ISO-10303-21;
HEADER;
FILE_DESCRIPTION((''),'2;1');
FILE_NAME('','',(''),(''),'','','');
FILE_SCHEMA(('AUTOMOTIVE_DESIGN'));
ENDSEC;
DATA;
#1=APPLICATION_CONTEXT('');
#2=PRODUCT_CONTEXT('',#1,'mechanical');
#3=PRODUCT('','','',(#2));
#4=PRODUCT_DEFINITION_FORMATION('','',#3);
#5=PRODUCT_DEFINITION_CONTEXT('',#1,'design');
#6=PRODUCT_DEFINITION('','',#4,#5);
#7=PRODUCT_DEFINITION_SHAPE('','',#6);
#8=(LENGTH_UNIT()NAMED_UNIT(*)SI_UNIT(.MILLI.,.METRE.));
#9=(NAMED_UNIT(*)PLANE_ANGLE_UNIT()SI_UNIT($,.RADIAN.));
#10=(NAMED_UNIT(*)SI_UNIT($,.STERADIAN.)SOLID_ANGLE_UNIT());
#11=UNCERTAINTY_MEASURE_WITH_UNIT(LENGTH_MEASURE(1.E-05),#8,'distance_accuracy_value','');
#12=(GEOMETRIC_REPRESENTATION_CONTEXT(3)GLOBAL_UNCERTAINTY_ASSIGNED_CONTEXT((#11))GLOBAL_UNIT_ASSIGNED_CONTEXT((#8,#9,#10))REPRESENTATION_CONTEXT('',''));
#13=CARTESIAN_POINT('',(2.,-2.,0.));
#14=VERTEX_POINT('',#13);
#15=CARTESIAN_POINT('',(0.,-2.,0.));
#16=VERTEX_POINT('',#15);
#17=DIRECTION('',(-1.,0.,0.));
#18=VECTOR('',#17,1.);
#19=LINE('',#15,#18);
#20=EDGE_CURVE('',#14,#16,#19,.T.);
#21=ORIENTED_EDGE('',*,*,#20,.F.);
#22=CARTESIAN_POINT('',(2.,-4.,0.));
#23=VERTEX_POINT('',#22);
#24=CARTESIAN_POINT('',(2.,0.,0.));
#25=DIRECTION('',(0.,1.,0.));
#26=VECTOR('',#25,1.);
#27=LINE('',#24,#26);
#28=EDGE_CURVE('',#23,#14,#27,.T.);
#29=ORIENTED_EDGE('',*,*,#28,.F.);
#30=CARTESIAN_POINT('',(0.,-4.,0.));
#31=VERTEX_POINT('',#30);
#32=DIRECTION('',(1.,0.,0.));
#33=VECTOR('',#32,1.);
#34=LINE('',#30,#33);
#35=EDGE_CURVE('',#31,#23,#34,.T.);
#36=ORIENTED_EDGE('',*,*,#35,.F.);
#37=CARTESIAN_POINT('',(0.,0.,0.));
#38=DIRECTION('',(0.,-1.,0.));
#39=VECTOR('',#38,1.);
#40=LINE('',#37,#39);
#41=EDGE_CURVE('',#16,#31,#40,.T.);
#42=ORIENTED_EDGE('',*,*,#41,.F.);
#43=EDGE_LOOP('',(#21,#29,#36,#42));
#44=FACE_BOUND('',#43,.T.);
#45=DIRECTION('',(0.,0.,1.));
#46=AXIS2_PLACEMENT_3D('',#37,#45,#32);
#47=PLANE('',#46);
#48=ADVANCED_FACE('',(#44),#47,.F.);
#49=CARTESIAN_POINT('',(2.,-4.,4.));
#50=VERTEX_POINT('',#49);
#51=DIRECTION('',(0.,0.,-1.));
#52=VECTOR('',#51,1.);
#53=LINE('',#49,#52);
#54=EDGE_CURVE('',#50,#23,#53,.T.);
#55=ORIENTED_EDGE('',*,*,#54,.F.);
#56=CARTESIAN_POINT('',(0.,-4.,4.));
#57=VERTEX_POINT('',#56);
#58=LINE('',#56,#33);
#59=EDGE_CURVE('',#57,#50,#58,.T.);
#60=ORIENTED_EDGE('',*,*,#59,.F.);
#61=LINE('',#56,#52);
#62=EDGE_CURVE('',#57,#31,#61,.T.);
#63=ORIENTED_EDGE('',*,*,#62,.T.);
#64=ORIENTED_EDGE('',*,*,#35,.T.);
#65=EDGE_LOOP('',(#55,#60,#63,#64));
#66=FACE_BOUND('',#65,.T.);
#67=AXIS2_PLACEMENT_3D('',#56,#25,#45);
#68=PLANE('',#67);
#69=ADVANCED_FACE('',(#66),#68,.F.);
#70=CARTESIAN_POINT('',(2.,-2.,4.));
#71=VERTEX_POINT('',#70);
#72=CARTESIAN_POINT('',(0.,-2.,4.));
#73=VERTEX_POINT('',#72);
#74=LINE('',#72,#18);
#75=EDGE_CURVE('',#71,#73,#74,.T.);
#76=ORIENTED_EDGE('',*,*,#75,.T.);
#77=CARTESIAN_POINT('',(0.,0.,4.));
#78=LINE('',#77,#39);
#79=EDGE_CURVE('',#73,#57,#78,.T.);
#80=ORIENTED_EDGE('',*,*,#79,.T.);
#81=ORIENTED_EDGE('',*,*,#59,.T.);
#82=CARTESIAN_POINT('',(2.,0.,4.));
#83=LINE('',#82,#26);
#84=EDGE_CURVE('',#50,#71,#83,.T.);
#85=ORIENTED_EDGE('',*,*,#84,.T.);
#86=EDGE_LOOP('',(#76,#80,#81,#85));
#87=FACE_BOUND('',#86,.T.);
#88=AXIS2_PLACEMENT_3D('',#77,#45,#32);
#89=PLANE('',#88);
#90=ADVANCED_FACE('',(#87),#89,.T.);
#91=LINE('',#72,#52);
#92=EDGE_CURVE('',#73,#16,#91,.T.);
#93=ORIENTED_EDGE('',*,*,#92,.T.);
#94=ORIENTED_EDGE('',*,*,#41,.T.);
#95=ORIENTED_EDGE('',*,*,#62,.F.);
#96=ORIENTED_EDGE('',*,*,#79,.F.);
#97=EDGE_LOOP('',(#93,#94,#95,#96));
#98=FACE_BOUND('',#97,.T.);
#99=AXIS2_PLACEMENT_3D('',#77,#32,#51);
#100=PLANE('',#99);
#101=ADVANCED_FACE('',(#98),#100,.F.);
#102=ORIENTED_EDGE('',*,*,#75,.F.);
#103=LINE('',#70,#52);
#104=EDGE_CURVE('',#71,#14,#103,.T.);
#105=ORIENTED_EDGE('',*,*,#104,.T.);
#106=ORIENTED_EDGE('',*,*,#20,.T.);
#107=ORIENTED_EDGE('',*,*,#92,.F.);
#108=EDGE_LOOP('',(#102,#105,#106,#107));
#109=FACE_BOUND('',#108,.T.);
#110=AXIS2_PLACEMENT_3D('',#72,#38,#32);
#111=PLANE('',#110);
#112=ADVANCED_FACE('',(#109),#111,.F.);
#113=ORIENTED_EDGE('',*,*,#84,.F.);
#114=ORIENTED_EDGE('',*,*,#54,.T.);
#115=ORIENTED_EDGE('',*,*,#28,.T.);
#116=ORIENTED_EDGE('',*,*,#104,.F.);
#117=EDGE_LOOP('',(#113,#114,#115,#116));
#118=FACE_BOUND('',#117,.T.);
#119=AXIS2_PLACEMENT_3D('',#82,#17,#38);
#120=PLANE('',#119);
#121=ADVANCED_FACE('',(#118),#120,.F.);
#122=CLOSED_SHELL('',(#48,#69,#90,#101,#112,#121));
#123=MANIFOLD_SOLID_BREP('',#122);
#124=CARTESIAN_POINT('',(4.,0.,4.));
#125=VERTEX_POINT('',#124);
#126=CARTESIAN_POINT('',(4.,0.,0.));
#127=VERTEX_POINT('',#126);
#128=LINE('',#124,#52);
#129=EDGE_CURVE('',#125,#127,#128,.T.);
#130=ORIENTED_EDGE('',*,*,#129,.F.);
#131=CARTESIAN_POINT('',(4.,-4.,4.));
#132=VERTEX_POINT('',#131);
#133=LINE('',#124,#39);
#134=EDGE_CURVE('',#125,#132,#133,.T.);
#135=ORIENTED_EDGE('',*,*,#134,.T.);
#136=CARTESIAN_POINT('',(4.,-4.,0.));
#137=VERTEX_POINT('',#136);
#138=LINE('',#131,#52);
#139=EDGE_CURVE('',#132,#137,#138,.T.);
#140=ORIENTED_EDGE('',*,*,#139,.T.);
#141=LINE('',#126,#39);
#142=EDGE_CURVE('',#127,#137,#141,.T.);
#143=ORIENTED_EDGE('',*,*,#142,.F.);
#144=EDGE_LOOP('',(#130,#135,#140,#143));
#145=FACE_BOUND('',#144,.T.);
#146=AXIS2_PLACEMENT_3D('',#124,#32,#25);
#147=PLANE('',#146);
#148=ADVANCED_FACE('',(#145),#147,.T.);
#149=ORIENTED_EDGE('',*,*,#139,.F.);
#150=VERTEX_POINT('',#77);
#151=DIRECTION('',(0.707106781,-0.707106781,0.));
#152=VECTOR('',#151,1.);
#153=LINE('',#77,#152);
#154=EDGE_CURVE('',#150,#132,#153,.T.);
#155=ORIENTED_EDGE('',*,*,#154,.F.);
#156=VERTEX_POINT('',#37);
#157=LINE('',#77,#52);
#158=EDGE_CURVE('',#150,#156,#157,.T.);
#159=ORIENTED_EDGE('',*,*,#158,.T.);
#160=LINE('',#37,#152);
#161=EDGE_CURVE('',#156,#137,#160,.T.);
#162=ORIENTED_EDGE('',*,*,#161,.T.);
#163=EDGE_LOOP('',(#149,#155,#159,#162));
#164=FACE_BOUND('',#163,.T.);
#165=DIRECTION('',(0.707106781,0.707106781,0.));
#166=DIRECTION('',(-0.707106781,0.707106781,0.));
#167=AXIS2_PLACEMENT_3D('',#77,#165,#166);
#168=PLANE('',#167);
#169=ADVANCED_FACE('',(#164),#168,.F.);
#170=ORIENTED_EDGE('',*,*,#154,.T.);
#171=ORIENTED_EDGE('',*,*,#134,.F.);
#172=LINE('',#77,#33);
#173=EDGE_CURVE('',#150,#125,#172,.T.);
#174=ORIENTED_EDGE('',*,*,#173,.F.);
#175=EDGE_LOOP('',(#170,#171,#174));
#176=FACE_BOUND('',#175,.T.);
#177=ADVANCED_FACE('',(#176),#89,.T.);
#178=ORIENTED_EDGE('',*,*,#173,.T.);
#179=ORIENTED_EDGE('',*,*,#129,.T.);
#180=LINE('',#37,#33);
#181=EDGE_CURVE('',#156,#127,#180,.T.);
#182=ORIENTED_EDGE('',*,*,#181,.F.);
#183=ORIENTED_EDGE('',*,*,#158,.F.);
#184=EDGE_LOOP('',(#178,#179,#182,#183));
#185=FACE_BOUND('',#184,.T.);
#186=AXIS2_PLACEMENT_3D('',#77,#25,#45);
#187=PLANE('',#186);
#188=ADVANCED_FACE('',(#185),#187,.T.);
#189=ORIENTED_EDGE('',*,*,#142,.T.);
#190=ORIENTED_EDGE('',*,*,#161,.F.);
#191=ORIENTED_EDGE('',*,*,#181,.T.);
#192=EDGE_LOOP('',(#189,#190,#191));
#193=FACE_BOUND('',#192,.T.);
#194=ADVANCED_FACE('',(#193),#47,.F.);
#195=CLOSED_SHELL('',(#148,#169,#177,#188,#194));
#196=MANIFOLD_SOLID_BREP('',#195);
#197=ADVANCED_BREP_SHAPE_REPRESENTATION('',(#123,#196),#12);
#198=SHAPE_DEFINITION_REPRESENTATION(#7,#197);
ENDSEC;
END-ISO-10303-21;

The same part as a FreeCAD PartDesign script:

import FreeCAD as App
import Part
import Sketcher
from FreeCAD import Vector
Q = App.Units.Quantity

doc = App.newDocument("Part")
body = doc.addObject("PartDesign::Body", "Body")

# Sketch on XY plane
sketch1 = body.newObject("Sketcher::SketchObject", "Sketch")
sketch1.AttachmentSupport = (doc.getObject("XY_Plane"), [""])
sketch1.MapMode = "FlatFace"
sketch1.addGeometry(Part.LineSegment(Vector(0, 0, 0), Vector(4, -4, 0)), False)
sketch1.addGeometry(Part.LineSegment(Vector(4, -4, 0), Vector(4, 0, 0)), False)
sketch1.addGeometry(Part.LineSegment(Vector(4, 0, 0), Vector(0, 0, 0)), False)
sketch1.addConstraint(Sketcher.Constraint("Coincident", 0, 2, 1, 1))
sketch1.addConstraint(Sketcher.Constraint("Coincident", 1, 2, 2, 1))
sketch1.addConstraint(Sketcher.Constraint("Coincident", 2, 2, 0, 1))
sketch1.addConstraint(Sketcher.Constraint("Vertical", 1))
sketch1.addConstraint(Sketcher.Constraint("Horizontal", 2))
sketch1.addConstraint(Sketcher.Constraint("Coincident", 2, 2, -1, 1))
sketch1.addConstraint(Sketcher.Constraint("Equal", 2, 1))
sketch1.addConstraint(Sketcher.Constraint("DistanceX", 2, 2, 2, 1, Q("4 mm")))
pad1 = body.newObject("PartDesign::Pad", "Pad")
pad1.Profile = sketch1
pad1.Length = 4
body2 = doc.addObject("PartDesign::Body", "Body001")

# Sketch on XY plane
sketch2 = body2.newObject("Sketcher::SketchObject", "Sketch001")
sketch2.AttachmentSupport = (doc.getObject("XY_Plane001"), [""])
sketch2.MapMode = "FlatFace"
sketch2.addGeometry(Part.LineSegment(Vector(0, -2, 0), Vector(0, -4, 0)), False)
sketch2.addGeometry(Part.LineSegment(Vector(0, -4, 0), Vector(2, -4, 0)), False)
sketch2.addGeometry(Part.LineSegment(Vector(2, -4, 0), Vector(2, -2, 0)), False)
sketch2.addGeometry(Part.LineSegment(Vector(2, -2, 0), Vector(0, -2, 0)), False)
sketch2.addConstraint(Sketcher.Constraint("Coincident", 0, 2, 1, 1))
sketch2.addConstraint(Sketcher.Constraint("Coincident", 1, 2, 2, 1))
sketch2.addConstraint(Sketcher.Constraint("Coincident", 2, 2, 3, 1))
sketch2.addConstraint(Sketcher.Constraint("Coincident", 3, 2, 0, 1))
sketch2.addConstraint(Sketcher.Constraint("Vertical", 0))
sketch2.addConstraint(Sketcher.Constraint("Horizontal", 1))
sketch2.addConstraint(Sketcher.Constraint("Vertical", 2))
sketch2.addConstraint(Sketcher.Constraint("Horizontal", 3))
sketch2.addConstraint(Sketcher.Constraint("PointOnObject", 0, 2, -2))
sketch2.addConstraint(Sketcher.Constraint("Equal", 3, 0))
sketch2.addConstraint(Sketcher.Constraint("DistanceX", 1, 1, 1, 2, Q("2 mm")))
sketch2.addConstraint(Sketcher.Constraint("DistanceY", 0, 2, -1, 1, Q("4 mm")))
pad2 = body2.newObject("PartDesign::Pad", "Pad001")
pad2.Profile = sketch2
pad2.Length = 4

doc.recompute()
